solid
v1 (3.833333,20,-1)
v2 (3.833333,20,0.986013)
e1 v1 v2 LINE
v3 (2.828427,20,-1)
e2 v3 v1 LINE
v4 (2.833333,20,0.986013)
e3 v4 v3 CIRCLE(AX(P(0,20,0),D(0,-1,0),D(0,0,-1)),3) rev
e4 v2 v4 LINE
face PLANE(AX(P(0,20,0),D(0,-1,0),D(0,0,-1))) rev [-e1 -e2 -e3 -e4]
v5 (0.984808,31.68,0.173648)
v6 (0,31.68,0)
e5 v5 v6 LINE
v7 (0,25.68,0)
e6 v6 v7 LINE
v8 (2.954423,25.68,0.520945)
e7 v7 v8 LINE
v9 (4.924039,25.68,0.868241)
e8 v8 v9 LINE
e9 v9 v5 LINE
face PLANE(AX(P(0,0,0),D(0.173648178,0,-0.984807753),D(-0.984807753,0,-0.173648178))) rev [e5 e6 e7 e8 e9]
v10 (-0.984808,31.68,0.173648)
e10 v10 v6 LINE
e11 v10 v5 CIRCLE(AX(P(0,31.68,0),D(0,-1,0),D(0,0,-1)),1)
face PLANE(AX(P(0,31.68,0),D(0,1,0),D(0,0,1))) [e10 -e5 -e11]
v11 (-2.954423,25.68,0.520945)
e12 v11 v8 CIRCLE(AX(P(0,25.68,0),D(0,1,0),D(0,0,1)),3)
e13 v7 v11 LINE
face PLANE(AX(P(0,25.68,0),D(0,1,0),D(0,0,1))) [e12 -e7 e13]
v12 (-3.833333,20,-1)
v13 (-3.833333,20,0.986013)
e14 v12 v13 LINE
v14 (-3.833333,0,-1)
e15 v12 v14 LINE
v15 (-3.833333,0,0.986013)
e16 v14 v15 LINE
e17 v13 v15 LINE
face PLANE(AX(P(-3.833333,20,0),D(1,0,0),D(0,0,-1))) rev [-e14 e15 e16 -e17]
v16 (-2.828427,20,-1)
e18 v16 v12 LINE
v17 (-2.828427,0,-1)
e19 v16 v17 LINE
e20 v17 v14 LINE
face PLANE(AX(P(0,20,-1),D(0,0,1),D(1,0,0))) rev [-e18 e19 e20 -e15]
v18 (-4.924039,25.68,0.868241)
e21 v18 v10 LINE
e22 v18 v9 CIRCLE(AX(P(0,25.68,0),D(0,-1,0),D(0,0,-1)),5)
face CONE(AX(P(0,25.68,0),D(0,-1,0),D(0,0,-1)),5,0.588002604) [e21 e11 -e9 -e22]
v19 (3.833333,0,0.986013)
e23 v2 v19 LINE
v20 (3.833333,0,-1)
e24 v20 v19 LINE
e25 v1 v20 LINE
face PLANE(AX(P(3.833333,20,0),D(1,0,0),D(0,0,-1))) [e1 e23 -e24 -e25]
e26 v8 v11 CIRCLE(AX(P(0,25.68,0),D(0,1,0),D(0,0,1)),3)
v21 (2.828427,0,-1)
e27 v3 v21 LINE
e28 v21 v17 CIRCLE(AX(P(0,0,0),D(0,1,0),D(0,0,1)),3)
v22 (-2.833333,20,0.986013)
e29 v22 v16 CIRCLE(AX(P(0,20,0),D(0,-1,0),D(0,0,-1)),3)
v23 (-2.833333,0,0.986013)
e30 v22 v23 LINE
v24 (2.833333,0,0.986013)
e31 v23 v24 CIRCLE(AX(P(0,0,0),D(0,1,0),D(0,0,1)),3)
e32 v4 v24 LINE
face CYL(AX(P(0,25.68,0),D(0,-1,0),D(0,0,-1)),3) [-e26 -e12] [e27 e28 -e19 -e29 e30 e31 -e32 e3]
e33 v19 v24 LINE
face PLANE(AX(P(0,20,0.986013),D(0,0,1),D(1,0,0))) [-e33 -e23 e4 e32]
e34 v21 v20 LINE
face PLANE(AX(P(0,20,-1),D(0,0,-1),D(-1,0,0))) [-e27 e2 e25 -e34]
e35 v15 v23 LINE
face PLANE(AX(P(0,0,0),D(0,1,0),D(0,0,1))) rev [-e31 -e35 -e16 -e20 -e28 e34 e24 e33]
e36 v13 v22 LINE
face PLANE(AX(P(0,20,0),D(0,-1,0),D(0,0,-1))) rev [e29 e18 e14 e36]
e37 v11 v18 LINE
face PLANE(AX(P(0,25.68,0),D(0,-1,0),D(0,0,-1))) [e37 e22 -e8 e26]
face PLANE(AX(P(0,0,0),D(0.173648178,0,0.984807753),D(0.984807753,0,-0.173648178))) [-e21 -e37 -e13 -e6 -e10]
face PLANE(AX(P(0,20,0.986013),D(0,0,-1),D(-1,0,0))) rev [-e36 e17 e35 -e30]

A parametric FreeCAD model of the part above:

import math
import FreeCAD as App
import Part
import Sketcher
from FreeCAD import Vector
Q = App.Units.Quantity

doc = App.newDocument("Part")
body = doc.addObject("PartDesign::Body", "Body")

sketch1 = body.newObject("Sketcher::SketchObject", "Sketch")
sketch1.AttachmentSupport = (doc.getObject("XZ_Plane"), [""])
sketch1.MapMode = "FlatFace"
sketch1.addGeometry(Part.Circle(Vector(0, 0, 0), Vector(0, 0, 1), 3), False)
sketch1.addConstraint([
    Sketcher.Constraint("Coincident", 0, 3, -1, 1),
    Sketcher.Constraint("Diameter", 0, Q("6 mm")),
])
pad1 = body.newObject("PartDesign::Pad", "Pad")
pad1.Profile = sketch1
pad1.Length = 25.68
pad1.Reversed = True

sketch2 = body.newObject("Sketcher::SketchObject", "Sketch001")
sketch2.AttachmentSupport = (doc.getObject("YZ_Plane"), [""])
sketch2.MapMode = "FlatFace"
sketch2.addGeometry([
    Part.LineSegment(Vector(25.7, -5, 0), Vector(31.7, -1, 0)),
    Part.LineSegment(Vector(31.7, -1, 0), Vector(31.7, 0, 0)),
    Part.LineSegment(Vector(31.7, 0, 0), Vector(25.7, 0, 0)),
    Part.LineSegment(Vector(25.7, 0, 0), Vector(25.7, -5, 0)),
], False)
sketch2.addConstraint([
    Sketcher.Constraint("Coincident", 0, 2, 1, 1),
    Sketcher.Constraint("Coincident", 1, 2, 2, 1),
    Sketcher.Constraint("Coincident", 2, 2, 3, 1),
    Sketcher.Constraint("Coincident", 3, 2, 0, 1),
    Sketcher.Constraint("Vertical", 1),
    Sketcher.Constraint("Horizontal", 2),
    Sketcher.Constraint("Vertical", 3),
    Sketcher.Constraint("PointOnObject", 1, 2, -1),
    Sketcher.Constraint("DistanceX", 2, 2, 2, 1, Q("6 mm")),
    Sketcher.Constraint("DistanceY", 1, 1, 1, 2, Q("1 mm")),
    Sketcher.Constraint("DistanceY", 3, 2, 3, 1, Q("5 mm")),
    Sketcher.Constraint("DistanceX", -1, 1, 0, 2, Q("31.68 mm")),
])
revolution = body.newObject("PartDesign::Revolution", "Revolution")
revolution.Profile = sketch2
revolution.ReferenceAxis = (sketch2, ["H_Axis"])
revolution.Angle = 100

sketch3 = body.newObject("Sketcher::SketchObject", "Sketch002")
sketch3.AttachmentSupport = (doc.getObject("YZ_Plane"), [""])
sketch3.MapMode = "FlatFace"
sketch3.addGeometry([
    Part.LineSegment(Vector(25.7, -5, 0), Vector(31.7, -1, 0)),
    Part.LineSegment(Vector(31.7, -1, 0), Vector(31.7, 0, 0)),
    Part.LineSegment(Vector(31.7, 0, 0), Vector(25.7, 0, 0)),
    Part.LineSegment(Vector(25.7, 0, 0), Vector(25.7, -5, 0)),
], False)
sketch3.addConstraint([
    Sketcher.Constraint("Coincident", 0, 2, 1, 1),
    Sketcher.Constraint("Coincident", 1, 2, 2, 1),
    Sketcher.Constraint("Coincident", 2, 2, 3, 1),
    Sketcher.Constraint("Coincident", 3, 2, 0, 1),
    Sketcher.Constraint("Vertical", 1),
    Sketcher.Constraint("Horizontal", 2),
    Sketcher.Constraint("Vertical", 3),
    Sketcher.Constraint("PointOnObject", 1, 2, -1),
    Sketcher.Constraint("DistanceX", 2, 2, 2, 1, Q("6 mm")),
    Sketcher.Constraint("DistanceY", 1, 1, 1, 2, Q("1 mm")),
    Sketcher.Constraint("DistanceY", 3, 2, 3, 1, Q("5 mm")),
    Sketcher.Constraint("DistanceX", -1, 1, 0, 2, Q("31.68 mm")),
])
revolution2 = body.newObject("PartDesign::Revolution", "Revolution001")
revolution2.Profile = sketch3
revolution2.ReferenceAxis = (sketch3, ["H_Axis"])
revolution2.Angle = 100
revolution2.Reversed = True

sketch4 = body.newObject("Sketcher::SketchObject", "Sketch003")
sketch4.AttachmentSupport = (doc.getObject("XZ_Plane"), [""])
sketch4.MapMode = "FlatFace"
sketch4.addGeometry([
    Part.ArcOfCircle(Part.Circle(Vector(0, 0, 0), Vector(0, 0, 1), 3), math.radians(161), math.radians(199)),
    Part.LineSegment(Vector(-2.8, 1, 0), Vector(-3.8, 1, 0)),
    Part.LineSegment(Vector(-3.8, 1, 0), Vector(-3.8, -1, 0)),
    Part.LineSegment(Vector(-3.8, -1, 0), Vector(-2.8, -1, 0)),
    Part.LineSegment(Vector(3.8, 1, 0), Vector(2.8, 1, 0)),
    Part.ArcOfCircle(Part.Circle(Vector(0, 0, 0), Vector(0, 0, 1), 3), math.radians(-19), math.radians(19)),
    Part.LineSegment(Vector(2.8, -1, 0), Vector(3.8, -1, 0)),
    Part.LineSegment(Vector(3.8, -1, 0), Vector(3.8, 1, 0)),
], False)
sketch4.addConstraint([
    Sketcher.Constraint("Coincident", 0, 1, 1, 1),
    Sketcher.Constraint("Coincident", 1, 2, 2, 1),
    Sketcher.Constraint("Coincident", 2, 2, 3, 1),
    Sketcher.Constraint("Coincident", 3, 2, 0, 2),
    Sketcher.Constraint("Coincident", 4, 2, 5, 2),
    Sketcher.Constraint("Coincident", 5, 1, 6, 1),
    Sketcher.Constraint("Coincident", 6, 2, 7, 1),
    Sketcher.Constraint("Coincident", 7, 2, 4, 1),
    Sketcher.Constraint("Horizontal", 1),
    Sketcher.Constraint("Vertical", 2),
    Sketcher.Constraint("Horizontal", 3),
    Sketcher.Constraint("Horizontal", 4),
    Sketcher.Constraint("Horizontal", 6),
    Sketcher.Constraint("Vertical", 7),
    Sketcher.Constraint("Coincident", 0, 3, -1, 1),
    Sketcher.Constraint("Coincident", 5, 3, -1, 1),
    Sketcher.Constraint("Equal", 0, 5),
    Sketcher.Constraint("Symmetric", 2, 2, 6, 2, -2),
    Sketcher.Constraint("Horizontal", 1, 2, 4, 2),
    Sketcher.Constraint("Radius", 0, Q("3 mm")),
    Sketcher.Constraint("DistanceX", 1, 2, 1, 1, Q("1 mm")),
    Sketcher.Constraint("DistanceY", 2, 2, -1, 1, Q("1 mm")),
    Sketcher.Constraint("DistanceX", 3, 1, 3, 2, Q("1.004906 mm")),
])
pad2 = body.newObject("PartDesign::Pad", "Pad001")
pad2.Profile = sketch4
pad2.Length = 20
pad2.Reversed = True

doc.recompute()
